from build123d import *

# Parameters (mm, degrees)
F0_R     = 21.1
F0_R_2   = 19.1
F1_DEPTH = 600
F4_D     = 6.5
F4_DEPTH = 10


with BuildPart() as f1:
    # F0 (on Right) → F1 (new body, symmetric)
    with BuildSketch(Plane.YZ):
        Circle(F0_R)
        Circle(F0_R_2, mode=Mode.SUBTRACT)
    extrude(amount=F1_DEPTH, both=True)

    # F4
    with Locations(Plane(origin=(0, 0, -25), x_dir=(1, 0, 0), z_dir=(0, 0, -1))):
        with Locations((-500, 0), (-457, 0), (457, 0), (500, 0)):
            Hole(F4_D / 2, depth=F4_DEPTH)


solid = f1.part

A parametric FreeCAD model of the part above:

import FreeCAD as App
import Part
import Sketcher
from FreeCAD import Vector

doc = App.newDocument("Part")
body = doc.addObject("PartDesign::Body", "Body")

sketch1 = body.newObject("Sketcher::SketchObject", "Sketch")
sketch1.AttachmentSupport = (doc.getObject("YZ_Plane"), [""])
sketch1.MapMode = "FlatFace"
sketch1.addGeometry([
    Part.Circle(Vector(0, 0, 0), Vector(0, 0, 1), 21),
    Part.Circle(Vector(0, 0, 0), Vector(0, 0, 1), 19),
], False)
sketch1.addConstraint([
    Sketcher.Constraint("Coincident", 0, 3, -1, 1),
    Sketcher.Constraint("Coincident", 1, 3, -1, 1),
    Sketcher.Constraint("Diameter", 0, 42.2),
    Sketcher.Constraint("Diameter", 1, 38.2),
])
pad1 = body.newObject("PartDesign::Pad", "Pad")
pad1.Profile = sketch1
pad1.Length = 1200
pad1.Midplane = True

sketch2 = body.newObject("Sketcher::SketchObject", "Sketch001")
sketch2.AttachmentSupport = (doc.getObject("XY_Plane"), [""])
sketch2.MapMode = "FlatFace"
sketch2.AttachmentOffset = App.Placement(Vector(0, 0, -25), App.Rotation())
sketch2.addGeometry([
    Part.Circle(Vector(-500, 0, 0), Vector(0, 0, 1), 3.2),
    Part.Circle(Vector(-457, 0, 0), Vector(0, 0, 1), 3.2),
    Part.Circle(Vector(457, 0, 0), Vector(0, 0, 1), 3.2),
    Part.Circle(Vector(500, 0, 0), Vector(0, 0, 1), 3.2),
], False)
sketch2.addConstraint([
    Sketcher.Constraint("Equal", 0, 1),
    Sketcher.Constraint("Equal", 1, 2),
    Sketcher.Constraint("Equal", 2, 3),
    Sketcher.Constraint("Symmetric", 1, 3, 2, 3, -1, 1),
    Sketcher.Constraint("Symmetric", 0, 3, 3, 3, -1, 1),
    Sketcher.Constraint("PointOnObject", 0, 3, -1),
    Sketcher.Constraint("PointOnObject", 1, 3, -1),
    Sketcher.Constraint("Diameter", 0, 6.5),
    Sketcher.Constraint("DistanceX", 0, 3, -1, 1, 500.0),
    Sketcher.Constraint("DistanceX", 1, 3, -1, 1, 457.0),
])
doc.recompute()
hole = body.newObject("PartDesign::Hole", "Hole")
hole.Profile = sketch2
hole.ThreadType = "None"
hole.Diameter = 6.5
hole.DepthType = "Dimension"
hole.Depth = 10
hole.DrillPoint = "Flat"
hole.Reversed = True

doc.recompute()
